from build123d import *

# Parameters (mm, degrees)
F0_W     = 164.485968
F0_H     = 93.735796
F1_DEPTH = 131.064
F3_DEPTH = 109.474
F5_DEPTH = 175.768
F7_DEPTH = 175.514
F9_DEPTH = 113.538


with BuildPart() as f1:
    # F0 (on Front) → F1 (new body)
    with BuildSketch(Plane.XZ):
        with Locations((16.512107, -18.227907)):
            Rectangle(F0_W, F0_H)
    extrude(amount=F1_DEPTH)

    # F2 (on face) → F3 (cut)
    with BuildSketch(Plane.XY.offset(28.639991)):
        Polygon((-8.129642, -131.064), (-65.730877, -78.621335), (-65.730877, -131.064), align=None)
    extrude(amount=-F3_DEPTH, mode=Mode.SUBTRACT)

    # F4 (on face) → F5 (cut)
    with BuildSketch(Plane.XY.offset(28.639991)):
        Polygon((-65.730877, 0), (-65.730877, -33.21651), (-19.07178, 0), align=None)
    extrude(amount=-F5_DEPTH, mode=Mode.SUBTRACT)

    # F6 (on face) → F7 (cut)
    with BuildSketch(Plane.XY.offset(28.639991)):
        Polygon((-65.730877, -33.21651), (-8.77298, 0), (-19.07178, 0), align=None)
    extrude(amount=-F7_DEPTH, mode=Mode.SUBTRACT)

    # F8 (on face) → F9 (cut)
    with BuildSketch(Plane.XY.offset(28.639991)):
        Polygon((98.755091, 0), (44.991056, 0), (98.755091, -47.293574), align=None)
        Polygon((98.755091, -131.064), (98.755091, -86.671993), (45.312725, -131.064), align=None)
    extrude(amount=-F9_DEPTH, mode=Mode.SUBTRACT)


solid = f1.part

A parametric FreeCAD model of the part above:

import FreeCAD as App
import Part
import Sketcher
Q = App.Units.Quantity


def add_polygon(sketch, points):
    """Adds a closed chain of lines whose ends are joined by coincident constraints."""
    first, n = sketch.GeometryCount, len(points)
    for a, b in zip(points, points[1:] + points[:1]):
        sketch.addGeometry(Part.LineSegment(App.Vector(*a, 0), App.Vector(*b, 0)), False)
    for i in range(n):
        sketch.addConstraint(Sketcher.Constraint("Coincident", first + i, 2, first + (i + 1) % n, 1))

doc = App.newDocument("Part")
body = doc.addObject("PartDesign::Body", "Body")

sketch1 = body.newObject("Sketcher::SketchObject", "Sketch")
sketch1.AttachmentSupport = (doc.getObject("XZ_Plane"), [""])
sketch1.MapMode = "FlatFace"
add_polygon(sketch1, [(-66, 29), (-66, -65), (99, -65), (99, 29)])
sketch1.addConstraint([
    Sketcher.Constraint("Vertical", 0),
    Sketcher.Constraint("Horizontal", 1),
    Sketcher.Constraint("Vertical", 2),
    Sketcher.Constraint("Horizontal", 3),
    Sketcher.Constraint("DistanceX", 1, 1, 1, 2, Q("164.485968 mm")),
    Sketcher.Constraint("DistanceY", 0, 2, 0, 1, Q("93.735796 mm")),
    Sketcher.Constraint("DistanceX", -1, 1, 1, 2, Q("98.755091 mm")),
    Sketcher.Constraint("DistanceY", -1, 1, 2, 2, Q("28.639991 mm")),
])
pad1 = body.newObject("PartDesign::Pad", "Pad")
pad1.Profile = sketch1
pad1.Length = Q("5.16 in")

sketch2 = body.newObject("Sketcher::SketchObject", "Sketch001")
sketch2.AttachmentSupport = (doc.getObject("XY_Plane"), [""])
sketch2.MapMode = "FlatFace"
sketch2.AttachmentOffset = App.Placement(App.Vector(0, 0, 28.639991), App.Rotation())
add_polygon(sketch2, [(-8, -131), (-66, -79), (-66, -131)])
sketch2.addConstraint([
    Sketcher.Constraint("Vertical", 1),
    Sketcher.Constraint("Horizontal", 2),
    Sketcher.Constraint("DistanceY", 1, 2, -1, 1, Q("5.16 in")),
    Sketcher.Constraint("DistanceX", 2, 1, 2, 2, Q("57.601235 mm")),
    Sketcher.Constraint("DistanceY", 1, 2, 1, 1, Q("52.442665 mm")),
    Sketcher.Constraint("DistanceX", 0, 2, -1, 1, Q("65.730877 mm")),
])
pocket1 = body.newObject("PartDesign::Pocket", "Pocket")
pocket1.Profile = sketch2
pocket1.Length = Q("4.31 in")

sketch3 = body.newObject("Sketcher::SketchObject", "Sketch002")
sketch3.AttachmentSupport = (doc.getObject("XY_Plane"), [""])
sketch3.MapMode = "FlatFace"
sketch3.AttachmentOffset = App.Placement(App.Vector(0, 0, 28.639991), App.Rotation())
add_polygon(sketch3, [(-66, 0), (-66, -33), (-19, 0)])
sketch3.addConstraint([
    Sketcher.Constraint("Vertical", 0),
    Sketcher.Constraint("Horizontal", 2),
    Sketcher.Constraint("PointOnObject", 1, 2, -1),
    Sketcher.Constraint("DistanceY", 0, 2, 0, 1, Q("33.21651 mm")),
    Sketcher.Constraint("DistanceX", 2, 2, 2, 1, Q("46.659097 mm")),
    Sketcher.Constraint("DistanceX", 1, 2, -1, 1, Q("19.07178 mm")),
])
pocket2 = body.newObject("PartDesign::Pocket", "Pocket001")
pocket2.Profile = sketch3
pocket2.Length = Q("6.92 in")

sketch4 = body.newObject("Sketcher::SketchObject", "Sketch003")
sketch4.AttachmentSupport = (doc.getObject("XY_Plane"), [""])
sketch4.MapMode = "FlatFace"
sketch4.AttachmentOffset = App.Placement(App.Vector(0, 0, 28.639991), App.Rotation())
add_polygon(sketch4, [(-66, -33), (-9, 0), (-19, 0)])
sketch4.addConstraint([
    Sketcher.Constraint("Horizontal", 1),
    Sketcher.Constraint("PointOnObject", 0, 2, -1),
    Sketcher.Constraint("DistanceX", 1, 2, 1, 1, Q("10.2988 mm")),
    Sketcher.Constraint("DistanceX", 0, 2, -1, 1, Q("8.77298 mm")),
    Sketcher.Constraint("DistanceY", 2, 2, -1, 1, Q("33.21651 mm")),
    Sketcher.Constraint("Distance", 0, Q("65.935867 mm")),
])
pocket3 = body.newObject("PartDesign::Pocket", "Pocket002")
pocket3.Profile = sketch4
pocket3.Length = Q("6.91 in")

sketch5 = body.newObject("Sketcher::SketchObject", "Sketch004")
sketch5.AttachmentSupport = (doc.getObject("XY_Plane"), [""])
sketch5.MapMode = "FlatFace"
sketch5.AttachmentOffset = App.Placement(App.Vector(0, 0, 28.639991), App.Rotation())
add_polygon(sketch5, [(99, 0), (45, 0), (99, -47)])
add_polygon(sketch5, [(99, -131), (99, -87), (45, -131)])
sketch5.addConstraint([
    Sketcher.Constraint("Horizontal", 0),
    Sketcher.Constraint("Vertical", 2),
    Sketcher.Constraint("Vertical", 3),
    Sketcher.Constraint("Horizontal", 5),
    Sketcher.Constraint("PointOnObject", 0, 2, -1),
    Sketcher.Constraint("Vertical", 2, 2, 3, 2),
    Sketcher.Constraint("DistanceY", 4, 2, -1, 1, Q("5.16 in")),
    Sketcher.Constraint("Distance", 4, Q("69.47472 mm")),
    Sketcher.Constraint("DistanceX", 0, 2, 0, 1, Q("53.764035 mm")),
    Sketcher.Constraint("DistanceX", 5, 1, 5, 2, Q("53.442366 mm")),
    Sketcher.Constraint("DistanceY", 2, 1, 2, 2, Q("47.293574 mm")),
    Sketcher.Constraint("DistanceX", -1, 1, 1, 2, Q("98.755091 mm")),
])
pocket4 = body.newObject("PartDesign::Pocket", "Pocket003")
pocket4.Profile = sketch5
pocket4.Length = Q("4.47 in")

doc.recompute()
